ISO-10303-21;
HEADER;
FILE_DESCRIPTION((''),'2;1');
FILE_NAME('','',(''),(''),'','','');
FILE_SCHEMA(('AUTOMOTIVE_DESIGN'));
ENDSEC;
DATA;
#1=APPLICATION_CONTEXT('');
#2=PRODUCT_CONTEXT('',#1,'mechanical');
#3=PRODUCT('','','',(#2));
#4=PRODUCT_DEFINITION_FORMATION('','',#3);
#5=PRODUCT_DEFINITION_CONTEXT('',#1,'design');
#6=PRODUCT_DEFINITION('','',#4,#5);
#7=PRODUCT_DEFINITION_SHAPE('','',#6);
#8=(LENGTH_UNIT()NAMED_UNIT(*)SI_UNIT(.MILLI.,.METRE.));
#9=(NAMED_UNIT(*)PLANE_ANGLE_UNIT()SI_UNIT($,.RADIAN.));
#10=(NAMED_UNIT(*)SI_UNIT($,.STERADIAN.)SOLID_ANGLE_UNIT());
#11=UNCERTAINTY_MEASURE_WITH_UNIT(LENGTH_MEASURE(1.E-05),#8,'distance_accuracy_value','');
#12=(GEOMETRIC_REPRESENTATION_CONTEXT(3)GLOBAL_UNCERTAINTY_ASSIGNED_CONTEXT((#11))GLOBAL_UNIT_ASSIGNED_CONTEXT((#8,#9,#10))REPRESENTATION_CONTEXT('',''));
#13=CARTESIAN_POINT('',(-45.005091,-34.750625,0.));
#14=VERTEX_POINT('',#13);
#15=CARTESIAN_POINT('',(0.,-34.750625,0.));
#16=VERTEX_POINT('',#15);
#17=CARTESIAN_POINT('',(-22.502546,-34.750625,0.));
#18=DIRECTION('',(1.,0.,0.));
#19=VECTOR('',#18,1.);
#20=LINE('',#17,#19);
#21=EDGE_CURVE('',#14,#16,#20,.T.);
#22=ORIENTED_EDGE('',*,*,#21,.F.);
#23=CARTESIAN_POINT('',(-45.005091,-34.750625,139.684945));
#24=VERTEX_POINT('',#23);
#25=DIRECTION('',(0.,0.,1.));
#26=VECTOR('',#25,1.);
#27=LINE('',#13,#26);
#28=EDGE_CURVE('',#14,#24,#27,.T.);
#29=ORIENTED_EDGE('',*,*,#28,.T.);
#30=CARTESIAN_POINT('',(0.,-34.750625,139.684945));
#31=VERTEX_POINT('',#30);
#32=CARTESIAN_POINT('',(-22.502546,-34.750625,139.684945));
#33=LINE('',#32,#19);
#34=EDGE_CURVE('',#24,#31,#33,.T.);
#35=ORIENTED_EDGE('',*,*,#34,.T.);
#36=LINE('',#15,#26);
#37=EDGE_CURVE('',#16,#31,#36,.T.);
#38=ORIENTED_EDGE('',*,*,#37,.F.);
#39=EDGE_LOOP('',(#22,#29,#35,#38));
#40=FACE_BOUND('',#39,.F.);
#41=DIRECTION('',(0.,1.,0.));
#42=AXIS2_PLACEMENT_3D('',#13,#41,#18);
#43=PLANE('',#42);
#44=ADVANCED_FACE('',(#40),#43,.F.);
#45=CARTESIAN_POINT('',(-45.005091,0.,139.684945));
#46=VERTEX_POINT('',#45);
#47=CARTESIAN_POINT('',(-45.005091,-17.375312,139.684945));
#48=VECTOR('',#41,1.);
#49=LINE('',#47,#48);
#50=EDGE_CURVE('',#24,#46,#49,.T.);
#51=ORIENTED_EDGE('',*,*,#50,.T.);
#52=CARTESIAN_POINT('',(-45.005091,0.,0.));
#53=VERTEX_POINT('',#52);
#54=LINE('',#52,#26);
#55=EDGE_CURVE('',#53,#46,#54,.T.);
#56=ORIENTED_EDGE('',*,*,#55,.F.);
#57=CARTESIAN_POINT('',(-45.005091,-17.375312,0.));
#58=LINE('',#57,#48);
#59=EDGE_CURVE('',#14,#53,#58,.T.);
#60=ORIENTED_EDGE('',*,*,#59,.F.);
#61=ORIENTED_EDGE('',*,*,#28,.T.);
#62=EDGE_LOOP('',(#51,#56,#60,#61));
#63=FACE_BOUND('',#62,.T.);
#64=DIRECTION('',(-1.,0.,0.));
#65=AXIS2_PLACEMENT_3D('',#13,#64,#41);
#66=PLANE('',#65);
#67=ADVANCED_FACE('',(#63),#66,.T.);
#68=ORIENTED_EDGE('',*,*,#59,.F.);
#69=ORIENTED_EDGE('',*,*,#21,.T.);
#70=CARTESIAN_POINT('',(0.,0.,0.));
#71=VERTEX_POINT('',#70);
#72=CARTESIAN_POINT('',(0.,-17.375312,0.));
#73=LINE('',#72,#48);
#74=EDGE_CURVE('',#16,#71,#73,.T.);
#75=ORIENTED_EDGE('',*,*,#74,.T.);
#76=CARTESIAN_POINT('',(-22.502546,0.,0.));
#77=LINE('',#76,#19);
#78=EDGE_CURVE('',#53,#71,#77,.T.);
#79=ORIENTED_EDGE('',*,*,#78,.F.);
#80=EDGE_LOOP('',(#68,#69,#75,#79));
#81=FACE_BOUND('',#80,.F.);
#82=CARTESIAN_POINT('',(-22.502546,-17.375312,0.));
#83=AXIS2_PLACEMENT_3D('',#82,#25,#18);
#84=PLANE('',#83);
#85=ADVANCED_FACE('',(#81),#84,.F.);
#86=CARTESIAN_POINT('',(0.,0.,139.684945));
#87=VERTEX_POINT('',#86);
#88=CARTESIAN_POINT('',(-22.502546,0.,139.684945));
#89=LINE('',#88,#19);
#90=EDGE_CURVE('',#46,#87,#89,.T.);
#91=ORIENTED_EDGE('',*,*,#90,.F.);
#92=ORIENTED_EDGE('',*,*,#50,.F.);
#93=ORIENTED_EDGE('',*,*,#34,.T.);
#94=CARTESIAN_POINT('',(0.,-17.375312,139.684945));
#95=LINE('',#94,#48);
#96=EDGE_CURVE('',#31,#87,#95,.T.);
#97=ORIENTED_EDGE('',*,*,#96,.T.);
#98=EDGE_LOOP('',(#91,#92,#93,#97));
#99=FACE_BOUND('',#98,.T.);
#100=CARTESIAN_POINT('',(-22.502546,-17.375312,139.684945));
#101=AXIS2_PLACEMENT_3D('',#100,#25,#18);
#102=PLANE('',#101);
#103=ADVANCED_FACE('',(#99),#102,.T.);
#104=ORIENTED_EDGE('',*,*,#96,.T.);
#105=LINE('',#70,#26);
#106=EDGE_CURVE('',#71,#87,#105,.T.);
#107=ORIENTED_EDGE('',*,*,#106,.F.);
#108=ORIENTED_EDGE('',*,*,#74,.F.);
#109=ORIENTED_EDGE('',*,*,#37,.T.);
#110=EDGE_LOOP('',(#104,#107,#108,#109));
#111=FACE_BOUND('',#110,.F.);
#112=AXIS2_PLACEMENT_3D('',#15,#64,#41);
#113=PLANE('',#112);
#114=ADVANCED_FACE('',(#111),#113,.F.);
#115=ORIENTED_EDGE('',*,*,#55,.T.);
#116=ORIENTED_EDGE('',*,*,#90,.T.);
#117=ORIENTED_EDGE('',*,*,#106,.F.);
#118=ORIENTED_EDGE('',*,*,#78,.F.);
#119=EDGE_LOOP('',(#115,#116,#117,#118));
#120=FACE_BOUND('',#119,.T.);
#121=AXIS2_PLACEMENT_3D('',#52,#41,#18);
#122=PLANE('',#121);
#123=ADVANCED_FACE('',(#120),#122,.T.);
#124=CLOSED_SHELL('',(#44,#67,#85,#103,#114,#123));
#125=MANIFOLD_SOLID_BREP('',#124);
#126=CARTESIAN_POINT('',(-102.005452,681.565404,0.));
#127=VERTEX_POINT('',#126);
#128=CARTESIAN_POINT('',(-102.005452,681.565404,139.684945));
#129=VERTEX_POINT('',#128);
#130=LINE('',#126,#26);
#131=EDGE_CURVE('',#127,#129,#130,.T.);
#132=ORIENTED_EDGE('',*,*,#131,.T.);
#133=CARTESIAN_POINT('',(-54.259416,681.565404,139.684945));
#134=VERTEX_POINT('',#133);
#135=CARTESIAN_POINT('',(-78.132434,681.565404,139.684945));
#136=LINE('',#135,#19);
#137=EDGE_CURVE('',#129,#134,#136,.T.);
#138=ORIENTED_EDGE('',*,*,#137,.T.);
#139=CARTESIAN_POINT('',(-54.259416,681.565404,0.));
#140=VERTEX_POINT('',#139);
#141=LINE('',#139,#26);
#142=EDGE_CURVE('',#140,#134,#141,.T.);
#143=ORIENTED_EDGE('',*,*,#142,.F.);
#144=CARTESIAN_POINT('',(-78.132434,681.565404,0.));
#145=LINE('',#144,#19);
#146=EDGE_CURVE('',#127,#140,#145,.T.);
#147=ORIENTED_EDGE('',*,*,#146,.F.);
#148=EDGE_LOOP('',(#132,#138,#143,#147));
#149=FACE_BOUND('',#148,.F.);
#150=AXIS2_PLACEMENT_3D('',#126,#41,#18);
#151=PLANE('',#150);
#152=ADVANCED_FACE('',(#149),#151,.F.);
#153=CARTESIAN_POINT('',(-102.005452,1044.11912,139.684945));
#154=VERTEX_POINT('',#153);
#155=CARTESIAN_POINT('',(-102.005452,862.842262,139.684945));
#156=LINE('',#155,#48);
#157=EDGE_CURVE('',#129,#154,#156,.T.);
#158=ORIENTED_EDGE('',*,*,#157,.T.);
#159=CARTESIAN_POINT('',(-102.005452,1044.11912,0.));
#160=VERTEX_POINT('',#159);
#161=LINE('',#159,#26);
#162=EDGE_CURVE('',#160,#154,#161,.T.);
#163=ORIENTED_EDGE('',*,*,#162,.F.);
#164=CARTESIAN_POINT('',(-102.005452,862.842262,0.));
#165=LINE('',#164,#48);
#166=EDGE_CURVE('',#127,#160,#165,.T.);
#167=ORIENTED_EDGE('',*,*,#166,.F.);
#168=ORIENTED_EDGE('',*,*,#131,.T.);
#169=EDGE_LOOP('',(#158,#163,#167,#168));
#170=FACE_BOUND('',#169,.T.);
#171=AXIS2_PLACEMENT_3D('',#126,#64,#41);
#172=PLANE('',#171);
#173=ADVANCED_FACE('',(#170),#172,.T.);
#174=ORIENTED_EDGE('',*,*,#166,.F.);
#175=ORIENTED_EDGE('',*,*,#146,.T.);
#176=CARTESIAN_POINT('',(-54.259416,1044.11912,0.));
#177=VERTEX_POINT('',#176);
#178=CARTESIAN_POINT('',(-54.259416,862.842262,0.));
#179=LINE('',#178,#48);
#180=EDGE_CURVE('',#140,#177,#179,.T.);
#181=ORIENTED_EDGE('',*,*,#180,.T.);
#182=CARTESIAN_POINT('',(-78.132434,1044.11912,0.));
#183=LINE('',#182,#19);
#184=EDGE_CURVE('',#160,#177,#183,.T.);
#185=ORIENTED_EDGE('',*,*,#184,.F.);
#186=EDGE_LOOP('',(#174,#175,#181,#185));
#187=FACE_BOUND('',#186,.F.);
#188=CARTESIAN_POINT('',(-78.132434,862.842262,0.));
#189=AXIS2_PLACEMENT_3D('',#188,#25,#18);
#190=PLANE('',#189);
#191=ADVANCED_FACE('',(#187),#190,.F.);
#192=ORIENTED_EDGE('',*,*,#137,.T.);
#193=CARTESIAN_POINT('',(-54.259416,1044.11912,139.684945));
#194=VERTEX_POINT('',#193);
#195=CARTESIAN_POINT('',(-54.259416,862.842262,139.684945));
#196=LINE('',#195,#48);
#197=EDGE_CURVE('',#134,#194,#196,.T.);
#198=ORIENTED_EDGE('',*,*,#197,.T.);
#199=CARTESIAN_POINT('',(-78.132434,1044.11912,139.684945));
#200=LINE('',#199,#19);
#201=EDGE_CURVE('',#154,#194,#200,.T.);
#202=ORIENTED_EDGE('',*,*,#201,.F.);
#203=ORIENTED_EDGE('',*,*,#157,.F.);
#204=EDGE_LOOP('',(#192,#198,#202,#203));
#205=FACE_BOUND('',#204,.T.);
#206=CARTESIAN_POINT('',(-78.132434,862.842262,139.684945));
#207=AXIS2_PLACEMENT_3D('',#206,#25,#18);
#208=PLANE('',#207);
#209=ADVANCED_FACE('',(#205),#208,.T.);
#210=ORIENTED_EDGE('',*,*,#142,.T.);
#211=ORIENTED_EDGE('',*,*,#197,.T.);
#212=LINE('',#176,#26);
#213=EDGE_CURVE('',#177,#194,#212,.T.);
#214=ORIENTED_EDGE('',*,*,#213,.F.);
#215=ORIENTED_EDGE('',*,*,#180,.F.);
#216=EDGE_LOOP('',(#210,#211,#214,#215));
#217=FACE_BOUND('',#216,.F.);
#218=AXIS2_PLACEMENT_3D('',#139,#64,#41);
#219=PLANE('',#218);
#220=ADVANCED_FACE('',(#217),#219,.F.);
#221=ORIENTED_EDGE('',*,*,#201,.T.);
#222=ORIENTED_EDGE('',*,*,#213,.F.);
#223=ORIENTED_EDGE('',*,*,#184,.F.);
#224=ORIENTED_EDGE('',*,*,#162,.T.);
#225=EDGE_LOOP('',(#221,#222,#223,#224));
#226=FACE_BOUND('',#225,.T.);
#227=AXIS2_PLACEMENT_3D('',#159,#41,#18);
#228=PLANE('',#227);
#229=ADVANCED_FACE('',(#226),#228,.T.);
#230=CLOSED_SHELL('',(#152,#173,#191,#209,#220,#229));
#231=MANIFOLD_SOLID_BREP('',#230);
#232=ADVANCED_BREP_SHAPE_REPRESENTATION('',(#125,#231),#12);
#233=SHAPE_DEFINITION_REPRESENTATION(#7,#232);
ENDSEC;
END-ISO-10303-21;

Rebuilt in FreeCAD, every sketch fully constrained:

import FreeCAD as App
import Part
import Sketcher

V = App.Vector
Q = App.Units.Quantity

doc = App.newDocument("Part")
body = doc.addObject("PartDesign::Body", "Body")
body.AllowCompound = True

sketch1 = body.newObject("Sketcher::SketchObject", "Sketch")
sketch1.AttachmentSupport = (doc.getObject("XY_Plane"), [""])
sketch1.MapMode = "FlatFace"
sketch1.addGeometry([
    Part.LineSegment(V(-102, 1044, 0), V(-102, 682, 0)),
    Part.LineSegment(V(-102, 682, 0), V(-54, 682, 0)),
    Part.LineSegment(V(-54, 682, 0), V(-54, 1044, 0)),
    Part.LineSegment(V(-54, 1044, 0), V(-102, 1044, 0)),
    Part.LineSegment(V(-45, 0, 0), V(-45, -35, 0)),
    Part.LineSegment(V(-45, -35, 0), V(0, -35, 0)),
    Part.LineSegment(V(0, -35, 0), V(0, 0, 0)),
    Part.LineSegment(V(0, 0, 0), V(-45, 0, 0)),
], False)
sketch1.addConstraint([
    Sketcher.Constraint("Coincident", 0, 2, 1, 1),
    Sketcher.Constraint("Coincident", 1, 2, 2, 1),
    Sketcher.Constraint("Coincident", 2, 2, 3, 1),
    Sketcher.Constraint("Coincident", 3, 2, 0, 1),
    Sketcher.Constraint("Coincident", 4, 2, 5, 1),
    Sketcher.Constraint("Coincident", 5, 2, 6, 1),
    Sketcher.Constraint("Coincident", 6, 2, 7, 1),
    Sketcher.Constraint("Coincident", 7, 2, 4, 1),
    Sketcher.Constraint("Vertical", 0),
    Sketcher.Constraint("Horizontal", 1),
    Sketcher.Constraint("Vertical", 2),
    Sketcher.Constraint("Horizontal", 3),
    Sketcher.Constraint("Vertical", 4),
    Sketcher.Constraint("Horizontal", 5),
    Sketcher.Constraint("Vertical", 6),
    Sketcher.Constraint("Horizontal", 7),
    Sketcher.Constraint("Coincident", 6, 2, -1, 1),
    Sketcher.Constraint("DistanceX", 5, 1, 5, 2, Q("45.005091 mm")),
    Sketcher.Constraint("DistanceX", 1, 1, 1, 2, Q("47.746036 mm")),
    Sketcher.Constraint("DistanceY", 0, 2, 0, 1, Q("362.553716 mm")),
    Sketcher.Constraint("DistanceY", 4, 2, 4, 1, Q("34.750625 mm")),
    Sketcher.Constraint("DistanceY", -1, 1, 2, 2, Q("1044.11912 mm")),
    Sketcher.Constraint("DistanceX", 0, 2, 4, 2, Q("57.000361 mm")),
])
pad1 = body.newObject("PartDesign::Pad", "Pad")
pad1.Profile = sketch1
pad1.Length = 139.684945

doc.recompute()
